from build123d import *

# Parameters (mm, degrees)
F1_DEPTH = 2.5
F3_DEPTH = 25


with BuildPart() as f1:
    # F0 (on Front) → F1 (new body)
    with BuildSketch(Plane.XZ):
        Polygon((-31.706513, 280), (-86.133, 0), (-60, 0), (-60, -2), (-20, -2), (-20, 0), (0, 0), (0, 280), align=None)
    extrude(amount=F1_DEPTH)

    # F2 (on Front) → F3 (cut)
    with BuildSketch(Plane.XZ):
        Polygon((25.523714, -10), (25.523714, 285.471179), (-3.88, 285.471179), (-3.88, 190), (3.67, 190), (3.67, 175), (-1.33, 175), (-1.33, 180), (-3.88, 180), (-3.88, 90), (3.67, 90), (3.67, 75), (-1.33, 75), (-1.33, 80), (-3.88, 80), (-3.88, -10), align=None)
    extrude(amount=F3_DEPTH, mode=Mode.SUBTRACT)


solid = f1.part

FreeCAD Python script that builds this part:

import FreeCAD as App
import Part
import Sketcher
Q = App.Units.Quantity

doc = App.newDocument("Part")
params = doc.addObject("Spreadsheet::Sheet", "Params")
for row, (alias, value) in enumerate([
    ("sketch1_width", "40 mm"),
    ("sketch1_width2", "20 mm"),
    ("sketch1_height", "2 mm"),
    ("sketch1_height2", "280 mm"),
    ("pad1_length", "2.5 mm"),
    ("sketch2_width", "5 mm"),
    ("sketch2_height", "15 mm"),
    ("sketch2_height2", "90 mm"),
    ("sketch2_width2", "7.55 mm"),
    ("pocket1_length", "25 mm"),
], start=1):
    params.set(f"A{row}", alias)
    params.set(f"B{row}", "=" + value)
    params.setAlias(f"B{row}", alias)

body = doc.addObject("PartDesign::Body", "Body")

# Sketch on XZ plane
sketch1 = body.newObject("Sketcher::SketchObject", "Sketch")
sketch1.AttachmentSupport = (doc.getObject("XZ_Plane"), [""])
sketch1.MapMode = "FlatFace"
sketch1.addGeometry([
    Part.LineSegment(App.Vector(-31.7, 280, 0), App.Vector(-86.1, 0, 0)),  # 0
    Part.LineSegment(App.Vector(-86.1, 0, 0), App.Vector(-60, 0, 0)),  # 1
    Part.LineSegment(App.Vector(-60, 0, 0), App.Vector(-60, -2, 0)),  # 2
    Part.LineSegment(App.Vector(-60, -2, 0), App.Vector(-20, -2, 0)),  # 3
    Part.LineSegment(App.Vector(-20, -2, 0), App.Vector(-20, 0, 0)),  # 4
    Part.LineSegment(App.Vector(-20, 0, 0), App.Vector(0, 0, 0)),  # 5
    Part.LineSegment(App.Vector(0, 0, 0), App.Vector(0, 280, 0)),  # 6
    Part.LineSegment(App.Vector(0, 280, 0), App.Vector(-31.7, 280, 0)),  # 7
], False)
sketch1.addConstraint([
    Sketcher.Constraint("Coincident", 0, 2, 1, 1),
    Sketcher.Constraint("Coincident", 1, 2, 2, 1),
    Sketcher.Constraint("Coincident", 2, 2, 3, 1),
    Sketcher.Constraint("Coincident", 3, 2, 4, 1),
    Sketcher.Constraint("Coincident", 4, 2, 5, 1),
    Sketcher.Constraint("Coincident", 5, 2, 6, 1),
    Sketcher.Constraint("Coincident", 6, 2, 7, 1),
    Sketcher.Constraint("Coincident", 7, 2, 0, 1),
    Sketcher.Constraint("Horizontal", 1),
    Sketcher.Constraint("Vertical", 2),
    Sketcher.Constraint("Horizontal", 3),
    Sketcher.Constraint("Vertical", 4),
    Sketcher.Constraint("Horizontal", 5),
    Sketcher.Constraint("Vertical", 6),
    Sketcher.Constraint("Horizontal", 7),
    Sketcher.Constraint("Coincident", 5, 2, -1, 1),
    Sketcher.Constraint("PointOnObject", 0, 2, -1),
    Sketcher.Constraint("DistanceX", 3, 1, 3, 2, Q("40 mm")),
    Sketcher.Constraint("DistanceX", 5, 1, 5, 2, Q("20 mm")),
    Sketcher.Constraint("DistanceY", 2, 2, 2, 1, Q("2 mm")),
    Sketcher.Constraint("DistanceY", 6, 1, 6, 2, Q("280 mm")),
    Sketcher.Constraint("Angle", 0, Q("-101 deg")),
    Sketcher.Constraint("DistanceX", 1, 1, 1, 2, Q("26.133 mm")),
])
sketch1.setExpression("Constraints[17]", "Params.sketch1_width")
sketch1.setExpression("Constraints[18]", "Params.sketch1_width2")
sketch1.setExpression("Constraints[19]", "Params.sketch1_height")
sketch1.setExpression("Constraints[20]", "Params.sketch1_height2")
pad1 = body.newObject("PartDesign::Pad", "Pad")
pad1.Profile = sketch1
pad1.setExpression("Length", "Params.pad1_length")

# Sketch on XZ plane
sketch2 = body.newObject("Sketcher::SketchObject", "Sketch001")
sketch2.AttachmentSupport = (doc.getObject("XZ_Plane"), [""])
sketch2.MapMode = "FlatFace"
sketch2.addGeometry([
    Part.LineSegment(App.Vector(25.5, -10, 0), App.Vector(25.5, 285.5, 0)),  # 0
    Part.LineSegment(App.Vector(25.5, 285.5, 0), App.Vector(-3.9, 285.5, 0)),  # 1
    Part.LineSegment(App.Vector(-3.9, 285.5, 0), App.Vector(-3.9, 190, 0)),  # 2
    Part.LineSegment(App.Vector(-3.9, 190, 0), App.Vector(3.7, 190, 0)),  # 3
    Part.LineSegment(App.Vector(3.7, 190, 0), App.Vector(3.7, 175, 0)),  # 4
    Part.LineSegment(App.Vector(3.7, 175, 0), App.Vector(-1.3, 175, 0)),  # 5
    Part.LineSegment(App.Vector(-1.3, 175, 0), App.Vector(-1.3, 180, 0)),  # 6
    Part.LineSegment(App.Vector(-1.3, 180, 0), App.Vector(-3.9, 180, 0)),  # 7
    Part.LineSegment(App.Vector(-3.9, 180, 0), App.Vector(-3.9, 90, 0)),  # 8
    Part.LineSegment(App.Vector(-3.9, 90, 0), App.Vector(3.7, 90, 0)),  # 9
    Part.LineSegment(App.Vector(3.7, 90, 0), App.Vector(3.7, 75, 0)),  # 10
    Part.LineSegment(App.Vector(3.7, 75, 0), App.Vector(-1.3, 75, 0)),  # 11
    Part.LineSegment(App.Vector(-1.3, 75, 0), App.Vector(-1.3, 80, 0)),  # 12
    Part.LineSegment(App.Vector(-1.3, 80, 0), App.Vector(-3.9, 80, 0)),  # 13
    Part.LineSegment(App.Vector(-3.9, 80, 0), App.Vector(-3.9, -10, 0)),  # 14
    Part.LineSegment(App.Vector(-3.9, -10, 0), App.Vector(25.5, -10, 0)),  # 15
], False)
sketch2.addConstraint([
    Sketcher.Constraint("Coincident", 0, 2, 1, 1),
    Sketcher.Constraint("Coincident", 1, 2, 2, 1),
    Sketcher.Constraint("Coincident", 2, 2, 3, 1),
    Sketcher.Constraint("Coincident", 3, 2, 4, 1),
    Sketcher.Constraint("Coincident", 4, 2, 5, 1),
    Sketcher.Constraint("Coincident", 5, 2, 6, 1),
    Sketcher.Constraint("Coincident", 6, 2, 7, 1),
    Sketcher.Constraint("Coincident", 7, 2, 8, 1),
    Sketcher.Constraint("Coincident", 8, 2, 9, 1),
    Sketcher.Constraint("Coincident", 9, 2, 10, 1),
    Sketcher.Constraint("Coincident", 10, 2, 11, 1),
    Sketcher.Constraint("Coincident", 11, 2, 12, 1),
    Sketcher.Constraint("Coincident", 12, 2, 13, 1),
    Sketcher.Constraint("Coincident", 13, 2, 14, 1),
    Sketcher.Constraint("Coincident", 14, 2, 15, 1),
    Sketcher.Constraint("Coincident", 15, 2, 0, 1),
    Sketcher.Constraint("Vertical", 0),
    Sketcher.Constraint("Horizontal", 1),
    Sketcher.Constraint("Vertical", 2),
    Sketcher.Constraint("Horizontal", 3),
    Sketcher.Constraint("Vertical", 4),
    Sketcher.Constraint("Horizontal", 5),
    Sketcher.Constraint("Vertical", 6),
    Sketcher.Constraint("Horizontal", 7),
    Sketcher.Constraint("Vertical", 8),
    Sketcher.Constraint("Horizontal", 9),
    Sketcher.Constraint("Vertical", 10),
    Sketcher.Constraint("Horizontal", 11),
    Sketcher.Constraint("Vertical", 12),
    Sketcher.Constraint("Horizontal", 13),
    Sketcher.Constraint("Vertical", 14),
    Sketcher.Constraint("Horizontal", 15),
    Sketcher.Constraint("Vertical", 2, 2, 7, 2),
    Sketcher.Constraint("Vertical", 4, 2, 9, 2),
    Sketcher.Constraint("Vertical", 6, 2, 11, 2),
    Sketcher.Constraint("Vertical", 8, 2, 13, 2),
    Sketcher.Constraint("Equal", 11, 6),
    Sketcher.Constraint("Equal", 4, 10),
    Sketcher.Constraint("Equal", 6, 12),
    Sketcher.Constraint("Equal", 8, 14),
    Sketcher.Constraint("DistanceX", 5, 2, 5, 1, Q("5 mm")),
    Sketcher.Constraint("DistanceY", 4, 2, 4, 1, Q("15 mm")),
    Sketcher.Constraint("DistanceY", 8, 2, 8, 1, Q("90 mm")),
    Sketcher.Constraint("DistanceY", -1, 1, 2, 2, Q("190 mm")),
    Sketcher.Constraint("DistanceX", 3, 1, 3, 2, Q("7.55 mm")),
    Sketcher.Constraint("DistanceX", 1, 2, -1, 1, Q("3.88 mm")),
    Sketcher.Constraint("DistanceY", 0, 1, 0, 2, Q("295.471179 mm")),
    Sketcher.Constraint("DistanceX", 1, 2, 1, 1, Q("29.403714 mm")),
])
sketch2.setExpression("Constraints[40]", "Params.sketch2_width")
sketch2.setExpression("Constraints[41]", "Params.sketch2_height")
sketch2.setExpression("Constraints[42]", "Params.sketch2_height2")
sketch2.setExpression("Constraints[44]", "Params.sketch2_width2")
pocket1 = body.newObject("PartDesign::Pocket", "Pocket")
pocket1.Profile = sketch2
pocket1.setExpression("Length", "Params.pocket1_length")
pocket1.Reversed = True

doc.recompute()
